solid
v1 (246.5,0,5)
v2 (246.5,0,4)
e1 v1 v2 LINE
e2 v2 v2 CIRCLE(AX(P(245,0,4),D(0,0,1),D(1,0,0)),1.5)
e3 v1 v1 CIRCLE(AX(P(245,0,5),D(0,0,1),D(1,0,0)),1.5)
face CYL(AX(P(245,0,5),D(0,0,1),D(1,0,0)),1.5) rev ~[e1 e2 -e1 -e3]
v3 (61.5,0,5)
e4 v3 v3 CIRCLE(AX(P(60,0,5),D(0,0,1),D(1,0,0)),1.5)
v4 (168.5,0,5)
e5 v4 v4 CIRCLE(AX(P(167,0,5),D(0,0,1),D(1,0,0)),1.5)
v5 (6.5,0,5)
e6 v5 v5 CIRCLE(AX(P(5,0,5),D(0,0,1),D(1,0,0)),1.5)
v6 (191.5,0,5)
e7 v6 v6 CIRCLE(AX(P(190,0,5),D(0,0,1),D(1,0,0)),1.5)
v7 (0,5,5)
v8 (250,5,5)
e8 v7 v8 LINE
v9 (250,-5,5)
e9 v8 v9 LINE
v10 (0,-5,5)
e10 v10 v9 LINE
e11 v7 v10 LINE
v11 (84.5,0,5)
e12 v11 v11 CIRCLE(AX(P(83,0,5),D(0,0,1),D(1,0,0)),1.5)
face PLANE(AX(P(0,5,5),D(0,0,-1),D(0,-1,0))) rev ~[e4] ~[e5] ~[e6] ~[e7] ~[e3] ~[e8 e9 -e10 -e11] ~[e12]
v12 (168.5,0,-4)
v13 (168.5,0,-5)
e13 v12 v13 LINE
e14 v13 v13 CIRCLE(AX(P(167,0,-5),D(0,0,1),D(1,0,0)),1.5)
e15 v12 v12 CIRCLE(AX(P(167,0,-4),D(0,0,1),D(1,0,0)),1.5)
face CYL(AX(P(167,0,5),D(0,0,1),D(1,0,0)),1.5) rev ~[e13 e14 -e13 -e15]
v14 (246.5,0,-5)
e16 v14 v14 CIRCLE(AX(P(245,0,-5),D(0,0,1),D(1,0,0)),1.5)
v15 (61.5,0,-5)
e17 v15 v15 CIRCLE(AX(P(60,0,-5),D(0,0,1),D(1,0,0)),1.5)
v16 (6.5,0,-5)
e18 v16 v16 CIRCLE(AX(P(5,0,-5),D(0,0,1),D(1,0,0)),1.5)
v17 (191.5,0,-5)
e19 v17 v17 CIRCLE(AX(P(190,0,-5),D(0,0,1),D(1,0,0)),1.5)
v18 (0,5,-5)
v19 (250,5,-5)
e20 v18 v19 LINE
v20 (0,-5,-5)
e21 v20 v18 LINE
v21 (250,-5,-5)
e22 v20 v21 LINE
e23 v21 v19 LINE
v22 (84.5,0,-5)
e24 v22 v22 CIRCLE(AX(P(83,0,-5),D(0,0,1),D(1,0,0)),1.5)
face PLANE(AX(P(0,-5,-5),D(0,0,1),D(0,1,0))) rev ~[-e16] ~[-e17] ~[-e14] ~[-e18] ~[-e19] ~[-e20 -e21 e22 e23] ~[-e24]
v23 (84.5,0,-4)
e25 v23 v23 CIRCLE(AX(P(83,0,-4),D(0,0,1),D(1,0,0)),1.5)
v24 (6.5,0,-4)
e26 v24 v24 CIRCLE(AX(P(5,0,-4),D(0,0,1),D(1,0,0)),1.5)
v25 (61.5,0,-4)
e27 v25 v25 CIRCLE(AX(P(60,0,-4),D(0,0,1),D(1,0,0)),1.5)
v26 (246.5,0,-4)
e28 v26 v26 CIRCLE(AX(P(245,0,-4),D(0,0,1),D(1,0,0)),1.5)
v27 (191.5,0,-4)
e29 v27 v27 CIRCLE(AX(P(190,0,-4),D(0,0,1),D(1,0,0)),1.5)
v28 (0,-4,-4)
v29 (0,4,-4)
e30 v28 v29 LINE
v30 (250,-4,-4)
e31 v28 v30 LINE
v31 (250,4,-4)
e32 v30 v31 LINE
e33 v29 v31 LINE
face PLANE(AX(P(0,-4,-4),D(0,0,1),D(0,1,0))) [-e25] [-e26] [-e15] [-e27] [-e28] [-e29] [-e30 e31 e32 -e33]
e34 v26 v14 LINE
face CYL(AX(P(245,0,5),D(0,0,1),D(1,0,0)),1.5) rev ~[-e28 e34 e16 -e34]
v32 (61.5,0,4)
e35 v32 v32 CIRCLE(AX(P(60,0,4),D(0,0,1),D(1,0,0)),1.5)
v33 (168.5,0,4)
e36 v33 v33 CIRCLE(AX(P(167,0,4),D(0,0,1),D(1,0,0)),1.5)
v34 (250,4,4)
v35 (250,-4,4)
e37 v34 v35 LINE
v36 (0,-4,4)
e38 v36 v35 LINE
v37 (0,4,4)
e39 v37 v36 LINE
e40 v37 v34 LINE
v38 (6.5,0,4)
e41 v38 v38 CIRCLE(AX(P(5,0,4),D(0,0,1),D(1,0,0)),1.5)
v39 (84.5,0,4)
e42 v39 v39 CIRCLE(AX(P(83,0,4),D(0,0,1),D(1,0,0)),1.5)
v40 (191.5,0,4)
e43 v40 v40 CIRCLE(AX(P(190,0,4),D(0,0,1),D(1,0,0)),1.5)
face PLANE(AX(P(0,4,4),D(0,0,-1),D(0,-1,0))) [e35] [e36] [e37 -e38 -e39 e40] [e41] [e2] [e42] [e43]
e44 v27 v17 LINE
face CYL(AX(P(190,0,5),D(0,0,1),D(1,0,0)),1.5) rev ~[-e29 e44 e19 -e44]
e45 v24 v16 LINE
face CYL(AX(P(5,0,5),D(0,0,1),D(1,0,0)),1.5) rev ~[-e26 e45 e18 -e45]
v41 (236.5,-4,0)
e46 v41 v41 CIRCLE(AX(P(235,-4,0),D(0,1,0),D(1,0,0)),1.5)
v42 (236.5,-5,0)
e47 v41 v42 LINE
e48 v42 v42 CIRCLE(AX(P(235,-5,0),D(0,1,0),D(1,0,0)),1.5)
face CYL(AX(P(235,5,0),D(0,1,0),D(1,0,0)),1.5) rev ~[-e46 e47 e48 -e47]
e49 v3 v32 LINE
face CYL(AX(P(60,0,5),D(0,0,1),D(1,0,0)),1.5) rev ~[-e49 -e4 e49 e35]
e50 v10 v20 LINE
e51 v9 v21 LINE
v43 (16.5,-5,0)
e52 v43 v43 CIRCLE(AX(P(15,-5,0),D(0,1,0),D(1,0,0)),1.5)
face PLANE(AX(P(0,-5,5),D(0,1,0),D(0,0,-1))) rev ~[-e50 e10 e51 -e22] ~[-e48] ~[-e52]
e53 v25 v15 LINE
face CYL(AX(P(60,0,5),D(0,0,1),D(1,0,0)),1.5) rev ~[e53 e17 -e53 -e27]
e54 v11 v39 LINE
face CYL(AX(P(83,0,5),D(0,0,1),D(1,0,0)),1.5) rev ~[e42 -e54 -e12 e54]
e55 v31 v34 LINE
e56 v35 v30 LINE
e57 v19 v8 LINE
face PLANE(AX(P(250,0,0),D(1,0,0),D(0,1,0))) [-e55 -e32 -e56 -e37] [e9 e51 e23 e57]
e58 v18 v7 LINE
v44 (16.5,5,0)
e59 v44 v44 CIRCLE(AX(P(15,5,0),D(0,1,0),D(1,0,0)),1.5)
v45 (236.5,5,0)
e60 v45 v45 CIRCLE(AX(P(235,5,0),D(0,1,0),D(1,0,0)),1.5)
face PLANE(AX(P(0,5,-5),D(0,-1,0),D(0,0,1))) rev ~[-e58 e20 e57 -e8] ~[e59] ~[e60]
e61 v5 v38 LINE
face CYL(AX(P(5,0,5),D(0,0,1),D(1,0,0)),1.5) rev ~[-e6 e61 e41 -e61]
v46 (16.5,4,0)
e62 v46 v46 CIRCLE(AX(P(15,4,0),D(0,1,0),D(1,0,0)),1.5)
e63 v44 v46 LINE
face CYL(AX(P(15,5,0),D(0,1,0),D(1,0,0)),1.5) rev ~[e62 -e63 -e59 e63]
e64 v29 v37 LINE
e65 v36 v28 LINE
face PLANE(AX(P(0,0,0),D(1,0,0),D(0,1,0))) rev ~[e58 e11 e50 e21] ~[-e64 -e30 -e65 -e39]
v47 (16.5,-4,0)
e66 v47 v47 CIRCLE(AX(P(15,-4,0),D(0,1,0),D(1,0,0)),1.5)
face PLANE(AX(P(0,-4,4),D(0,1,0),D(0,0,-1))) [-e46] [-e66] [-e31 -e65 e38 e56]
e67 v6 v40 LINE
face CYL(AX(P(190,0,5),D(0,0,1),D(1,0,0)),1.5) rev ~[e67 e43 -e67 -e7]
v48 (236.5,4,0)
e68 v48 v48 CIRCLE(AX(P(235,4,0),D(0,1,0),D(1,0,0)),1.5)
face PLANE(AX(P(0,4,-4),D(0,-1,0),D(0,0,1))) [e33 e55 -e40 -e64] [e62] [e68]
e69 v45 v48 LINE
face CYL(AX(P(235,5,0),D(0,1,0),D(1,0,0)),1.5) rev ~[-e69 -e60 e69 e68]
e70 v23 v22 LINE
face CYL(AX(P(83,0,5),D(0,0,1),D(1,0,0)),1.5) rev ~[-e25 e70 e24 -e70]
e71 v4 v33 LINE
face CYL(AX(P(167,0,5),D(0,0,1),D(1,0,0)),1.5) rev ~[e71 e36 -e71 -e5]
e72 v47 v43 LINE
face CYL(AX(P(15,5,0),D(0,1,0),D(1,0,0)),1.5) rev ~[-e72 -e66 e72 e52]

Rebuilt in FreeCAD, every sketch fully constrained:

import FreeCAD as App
import Part
import Sketcher
Q = App.Units.Quantity

doc = App.newDocument("Part")
body = doc.addObject("PartDesign::Body", "Body")

# Sketch on YZ plane
sketch1 = body.newObject("Sketcher::SketchObject", "Sketch")
sketch1.AttachmentSupport = (doc.getObject("YZ_Plane"), [""])
sketch1.MapMode = "FlatFace"
sketch1.addGeometry([
    Part.LineSegment(App.Vector(5, -5, 0), App.Vector(5, 5, 0)),  # 0
    Part.LineSegment(App.Vector(5, 5, 0), App.Vector(-5, 5, 0)),  # 1
    Part.LineSegment(App.Vector(-5, 5, 0), App.Vector(-5, -5, 0)),  # 2
    Part.LineSegment(App.Vector(-5, -5, 0), App.Vector(5, -5, 0)),  # 3
    Part.LineSegment(App.Vector(-4, 4, 0), App.Vector(4, 4, 0)),  # 4
    Part.LineSegment(App.Vector(4, 4, 0), App.Vector(4, -4, 0)),  # 5
    Part.LineSegment(App.Vector(4, -4, 0), App.Vector(-4, -4, 0)),  # 6
    Part.LineSegment(App.Vector(-4, -4, 0), App.Vector(-4, 4, 0)),  # 7
], False)
sketch1.addConstraint([
    Sketcher.Constraint("Coincident", 0, 2, 1, 1),
    Sketcher.Constraint("Coincident", 1, 2, 2, 1),
    Sketcher.Constraint("Coincident", 2, 2, 3, 1),
    Sketcher.Constraint("Coincident", 3, 2, 0, 1),
    Sketcher.Constraint("Coincident", 4, 2, 5, 1),
    Sketcher.Constraint("Coincident", 5, 2, 6, 1),
    Sketcher.Constraint("Coincident", 6, 2, 7, 1),
    Sketcher.Constraint("Coincident", 7, 2, 4, 1),
    Sketcher.Constraint("Vertical", 0),
    Sketcher.Constraint("Horizontal", 1),
    Sketcher.Constraint("Vertical", 2),
    Sketcher.Constraint("Horizontal", 3),
    Sketcher.Constraint("Horizontal", 4),
    Sketcher.Constraint("Vertical", 5),
    Sketcher.Constraint("Horizontal", 6),
    Sketcher.Constraint("Vertical", 7),
    Sketcher.Constraint("Symmetric", 0, 2, 2, 2, -1, 1),
    Sketcher.Constraint("Symmetric", 4, 2, 6, 2, -1, 1),
    Sketcher.Constraint("Equal", 3, 0),
    Sketcher.Constraint("Equal", 6, 5),
    Sketcher.Constraint("DistanceX", 1, 2, 1, 1, Q("10 mm")),
    Sketcher.Constraint("DistanceX", 4, 2, 0, 2, Q("1 mm")),
])
pad1 = body.newObject("PartDesign::Pad", "Pad")
pad1.Profile = sketch1
pad1.Length = 250

# Sketch on XY plane
sketch2 = body.newObject("Sketcher::SketchObject", "Sketch001")
sketch2.AttachmentSupport = (doc.getObject("XY_Plane"), [""])
sketch2.MapMode = "FlatFace"
sketch2.AttachmentOffset = App.Placement(App.Vector(0, 0, 5), App.Rotation())
sketch2.addGeometry([
    Part.Circle(App.Vector(60, 0, 0), App.Vector(0, 0, 1), 1.5),
    Part.Circle(App.Vector(190, 0, 0), App.Vector(0, 0, 1), 1.5),
], False)
sketch2.addConstraint([
    Sketcher.Constraint("Equal", 0, 1),
    Sketcher.Constraint("PointOnObject", 0, 3, -1),
    Sketcher.Constraint("PointOnObject", 1, 3, -1),
    Sketcher.Constraint("Diameter", 0, Q("3 mm")),
    Sketcher.Constraint("DistanceX", -1, 1, 0, 3, Q("60 mm")),
    Sketcher.Constraint("DistanceX", -1, 1, 1, 3, Q("190 mm")),
])
pocket1 = body.newObject("PartDesign::Pocket", "Pocket")
pocket1.Profile = sketch2
pocket1.Length = 200

# Sketch on XY plane
sketch3 = body.newObject("Sketcher::SketchObject", "Sketch002")
sketch3.AttachmentSupport = (doc.getObject("XY_Plane"), [""])
sketch3.MapMode = "FlatFace"
sketch3.AttachmentOffset = App.Placement(App.Vector(0, 0, 5), App.Rotation())
sketch3.addGeometry([
    Part.Circle(App.Vector(5, 0, 0), App.Vector(0, 0, 1), 1.5),
    Part.Circle(App.Vector(245, 0, 0), App.Vector(0, 0, 1), 1.5),
], False)
sketch3.addConstraint([
    Sketcher.Constraint("Equal", 0, 1),
    Sketcher.Constraint("PointOnObject", 0, 3, -1),
    Sketcher.Constraint("PointOnObject", 1, 3, -1),
    Sketcher.Constraint("Diameter", 0, Q("3 mm")),
    Sketcher.Constraint("DistanceX", -1, 1, 0, 3, Q("5 mm")),
    Sketcher.Constraint("DistanceX", -1, 1, 1, 3, Q("245 mm")),
])
pocket2 = body.newObject("PartDesign::Pocket", "Pocket001")
pocket2.Profile = sketch3
pocket2.Length = 200

# Sketch on XY plane
sketch4 = body.newObject("Sketcher::SketchObject", "Sketch003")
sketch4.AttachmentSupport = (doc.getObject("XY_Plane"), [""])
sketch4.MapMode = "FlatFace"
sketch4.AttachmentOffset = App.Placement(App.Vector(0, 0, 5), App.Rotation())
sketch4.addGeometry([
    Part.Circle(App.Vector(83, 0, 0), App.Vector(0, 0, 1), 1.5),
    Part.Circle(App.Vector(167, 0, 0), App.Vector(0, 0, 1), 1.5),
], False)
sketch4.addConstraint([
    Sketcher.Constraint("Equal", 0, 1),
    Sketcher.Constraint("PointOnObject", 0, 3, -1),
    Sketcher.Constraint("PointOnObject", 1, 3, -1),
    Sketcher.Constraint("Diameter", 0, Q("3 mm")),
    Sketcher.Constraint("DistanceX", 0, 3, 1, 3, Q("84 mm")),
    Sketcher.Constraint("DistanceX", -1, 1, 0, 3, Q("83 mm")),
])
pocket3 = body.newObject("PartDesign::Pocket", "Pocket002")
pocket3.Profile = sketch4
pocket3.Length = 200

# Sketch on XZ plane
sketch5 = body.newObject("Sketcher::SketchObject", "Sketch004")
sketch5.AttachmentSupport = (doc.getObject("XZ_Plane"), [""])
sketch5.MapMode = "FlatFace"
sketch5.AttachmentOffset = App.Placement(App.Vector(0, 0, -5), App.Rotation())
sketch5.addGeometry([
    Part.Circle(App.Vector(15, 0, 0), App.Vector(0, 0, 1), 1.5),
    Part.Circle(App.Vector(235, 0, 0), App.Vector(0, 0, 1), 1.5),
], False)
sketch5.addConstraint([
    Sketcher.Constraint("Equal", 0, 1),
    Sketcher.Constraint("PointOnObject", 0, 3, -1),
    Sketcher.Constraint("PointOnObject", 1, 3, -1),
    Sketcher.Constraint("Diameter", 0, Q("3 mm")),
    Sketcher.Constraint("DistanceX", -1, 1, 0, 3, Q("15 mm")),
    Sketcher.Constraint("DistanceX", -1, 1, 1, 3, Q("235 mm")),
])
pocket4 = body.newObject("PartDesign::Pocket", "Pocket003")
pocket4.Profile = sketch5
pocket4.Length = 200
pocket4.Reversed = True

doc.recompute()
